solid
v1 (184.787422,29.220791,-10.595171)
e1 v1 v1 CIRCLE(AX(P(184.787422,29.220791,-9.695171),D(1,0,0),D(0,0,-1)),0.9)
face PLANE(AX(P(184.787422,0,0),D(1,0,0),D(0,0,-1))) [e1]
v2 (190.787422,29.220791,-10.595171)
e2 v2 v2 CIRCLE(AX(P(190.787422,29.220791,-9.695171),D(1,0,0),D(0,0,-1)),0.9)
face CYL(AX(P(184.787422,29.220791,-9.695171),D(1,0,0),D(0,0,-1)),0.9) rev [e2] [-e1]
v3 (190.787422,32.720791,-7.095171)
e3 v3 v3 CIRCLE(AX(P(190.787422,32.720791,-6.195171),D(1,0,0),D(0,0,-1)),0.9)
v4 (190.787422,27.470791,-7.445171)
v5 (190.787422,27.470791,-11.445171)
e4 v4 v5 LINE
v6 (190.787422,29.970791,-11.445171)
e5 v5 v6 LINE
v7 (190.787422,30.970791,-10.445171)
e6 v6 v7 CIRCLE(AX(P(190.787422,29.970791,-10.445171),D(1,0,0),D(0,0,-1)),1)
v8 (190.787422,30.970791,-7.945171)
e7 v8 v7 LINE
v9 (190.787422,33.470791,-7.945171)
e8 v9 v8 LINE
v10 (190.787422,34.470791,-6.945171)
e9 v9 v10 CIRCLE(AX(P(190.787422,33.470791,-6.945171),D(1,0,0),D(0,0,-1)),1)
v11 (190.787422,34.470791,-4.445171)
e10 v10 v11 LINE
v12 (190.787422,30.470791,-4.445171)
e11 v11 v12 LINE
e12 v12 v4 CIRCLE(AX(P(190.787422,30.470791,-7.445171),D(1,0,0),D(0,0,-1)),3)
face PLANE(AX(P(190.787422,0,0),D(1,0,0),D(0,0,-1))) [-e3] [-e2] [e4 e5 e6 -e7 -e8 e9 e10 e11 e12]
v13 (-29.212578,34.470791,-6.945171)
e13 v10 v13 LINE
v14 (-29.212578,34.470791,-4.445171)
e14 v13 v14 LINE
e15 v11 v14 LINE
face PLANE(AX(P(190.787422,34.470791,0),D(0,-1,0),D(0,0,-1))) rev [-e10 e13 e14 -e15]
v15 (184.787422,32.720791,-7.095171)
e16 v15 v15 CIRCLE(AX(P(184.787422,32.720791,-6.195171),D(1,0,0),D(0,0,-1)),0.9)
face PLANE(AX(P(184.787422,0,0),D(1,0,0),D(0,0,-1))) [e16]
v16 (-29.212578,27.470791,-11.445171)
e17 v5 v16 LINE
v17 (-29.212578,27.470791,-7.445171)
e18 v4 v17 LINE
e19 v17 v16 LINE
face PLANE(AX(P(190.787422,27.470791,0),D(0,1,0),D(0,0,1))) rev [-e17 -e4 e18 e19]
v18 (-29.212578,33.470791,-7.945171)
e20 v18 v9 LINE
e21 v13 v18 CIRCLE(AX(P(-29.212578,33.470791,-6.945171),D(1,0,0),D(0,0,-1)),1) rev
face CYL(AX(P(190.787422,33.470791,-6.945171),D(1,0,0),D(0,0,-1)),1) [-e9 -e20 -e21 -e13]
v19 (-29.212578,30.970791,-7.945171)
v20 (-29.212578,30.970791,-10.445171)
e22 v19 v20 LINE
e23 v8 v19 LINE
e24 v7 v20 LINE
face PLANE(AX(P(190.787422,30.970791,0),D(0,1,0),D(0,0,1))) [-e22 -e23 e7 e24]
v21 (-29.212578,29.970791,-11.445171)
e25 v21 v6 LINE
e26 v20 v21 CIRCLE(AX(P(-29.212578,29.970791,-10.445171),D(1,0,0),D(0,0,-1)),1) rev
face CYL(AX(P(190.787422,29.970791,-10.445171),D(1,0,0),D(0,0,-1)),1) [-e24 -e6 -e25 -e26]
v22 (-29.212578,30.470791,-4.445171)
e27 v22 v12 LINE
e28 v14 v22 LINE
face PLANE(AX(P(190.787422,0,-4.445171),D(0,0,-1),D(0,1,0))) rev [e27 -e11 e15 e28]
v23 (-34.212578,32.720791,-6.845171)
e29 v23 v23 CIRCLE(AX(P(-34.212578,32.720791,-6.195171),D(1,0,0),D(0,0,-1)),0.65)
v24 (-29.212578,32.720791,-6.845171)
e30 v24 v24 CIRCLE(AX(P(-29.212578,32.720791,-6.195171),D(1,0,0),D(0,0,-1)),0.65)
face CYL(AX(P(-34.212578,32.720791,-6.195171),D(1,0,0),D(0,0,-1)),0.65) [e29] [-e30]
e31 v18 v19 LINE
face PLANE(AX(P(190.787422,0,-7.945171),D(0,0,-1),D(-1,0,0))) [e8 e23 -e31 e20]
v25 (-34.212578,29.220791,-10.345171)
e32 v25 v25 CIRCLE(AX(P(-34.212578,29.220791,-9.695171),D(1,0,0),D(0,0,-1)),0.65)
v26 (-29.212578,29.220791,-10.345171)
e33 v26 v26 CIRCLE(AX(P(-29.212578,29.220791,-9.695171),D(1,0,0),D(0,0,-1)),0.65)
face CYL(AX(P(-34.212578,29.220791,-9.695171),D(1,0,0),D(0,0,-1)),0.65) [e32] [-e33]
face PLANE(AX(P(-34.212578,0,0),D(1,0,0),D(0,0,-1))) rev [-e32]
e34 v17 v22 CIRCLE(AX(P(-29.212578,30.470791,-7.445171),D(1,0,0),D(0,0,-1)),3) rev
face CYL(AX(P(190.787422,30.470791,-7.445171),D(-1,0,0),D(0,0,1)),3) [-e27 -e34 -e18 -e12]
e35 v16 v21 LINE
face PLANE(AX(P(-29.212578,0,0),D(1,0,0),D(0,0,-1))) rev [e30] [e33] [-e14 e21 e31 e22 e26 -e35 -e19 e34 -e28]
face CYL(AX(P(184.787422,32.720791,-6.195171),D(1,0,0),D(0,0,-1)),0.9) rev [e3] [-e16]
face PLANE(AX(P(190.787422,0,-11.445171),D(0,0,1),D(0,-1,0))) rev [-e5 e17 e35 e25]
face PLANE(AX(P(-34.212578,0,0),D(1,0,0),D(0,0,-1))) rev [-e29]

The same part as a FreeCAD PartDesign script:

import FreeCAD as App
import Part
import Sketcher


def edges_at(feature, points):
    """Names of the edges that pass closest to the given points."""
    edges = feature.Shape.Edges
    near = lambda p: min(range(len(edges)), key=lambda i: edges[i].distToShape(Part.Vertex(*p))[0])
    return sorted({f"Edge{near(p) + 1}" for p in points})

doc = App.newDocument("Part")
params = doc.addObject("Spreadsheet::Sheet", "Params")
for row, (alias, value) in enumerate([
    ("sketch1_width", "7 mm"),
    ("pad1_length", "220 mm"),
    ("sketch2_diameter", "1.8 mm"),
    ("pocket1_length", "6 mm"),
    ("sketch3_diameter", "1.3 mm"),
    ("pad2_length", "5 mm"),
    ("fillet_radius", "3 mm"),
    ("fillet2_radius", "1 mm"),
], start=1):
    params.set(f"A{row}", alias)
    params.set(f"B{row}", "=" + value)
    params.setAlias(f"B{row}", alias)

body = doc.addObject("PartDesign::Body", "Body")

# Sketch on YZ plane
sketch1 = doc.addObject("Sketcher::SketchObject", "Sketch")
body.addObject(sketch1)
sketch1.AttachmentSupport = (doc.YZ_Plane, [""])
sketch1.MapMode = "FlatFace"
sketch1.AttachmentOffset = App.Placement(App.Vector(0, 0, -29.212578), App.Rotation())
sketch1.addGeometry([
    Part.LineSegment(App.Vector(30.970791, -7.945171, 0), App.Vector(34.470791, -7.945171, 0)),  # 0
    Part.LineSegment(App.Vector(34.470791, -7.945171, 0), App.Vector(34.470791, -4.445171, 0)),  # 1
    Part.LineSegment(App.Vector(34.470791, -4.445171, 0), App.Vector(27.470791, -4.445171, 0)),  # 2
    Part.LineSegment(App.Vector(27.470791, -4.445171, 0), App.Vector(27.470791, -11.445171, 0)),  # 3
    Part.LineSegment(App.Vector(27.470791, -11.445171, 0), App.Vector(30.970791, -11.445171, 0)),  # 4
    Part.LineSegment(App.Vector(30.970791, -11.445171, 0), App.Vector(30.970791, -7.945171, 0)),  # 5
], False)
sketch1.addConstraint([
    Sketcher.Constraint("Coincident", 0, 2, 1, 1),
    Sketcher.Constraint("Coincident", 1, 2, 2, 1),
    Sketcher.Constraint("Coincident", 2, 2, 3, 1),
    Sketcher.Constraint("Coincident", 3, 2, 4, 1),
    Sketcher.Constraint("Coincident", 4, 2, 5, 1),
    Sketcher.Constraint("Coincident", 5, 2, 0, 1),
    Sketcher.Constraint("Horizontal", 0),
    Sketcher.Constraint("Vertical", 1),
    Sketcher.Constraint("Horizontal", 2),
    Sketcher.Constraint("Vertical", 3),
    Sketcher.Constraint("Horizontal", 4),
    Sketcher.Constraint("Vertical", 5),
    Sketcher.Constraint("Equal", 0, 4),
    Sketcher.Constraint("Equal", 4, 1),
    Sketcher.Constraint("Equal", 2, 3),
    Sketcher.Constraint("DistanceX", 2, 2, 2, 1, 7.0),
    Sketcher.Constraint("DistanceX", -1, 1, 0, 2, 34.470791),
    Sketcher.Constraint("DistanceY", 0, 2, -1, 1, 7.945171),
])
sketch1.setExpression("Constraints[15]", "Params.sketch1_width")
pad1 = doc.addObject("PartDesign::Pad", "Pad")
body.addObject(pad1)
pad1.Profile = sketch1
pad1.setExpression("Length", "Params.pad1_length")

# Sketch on YZ plane
sketch2 = doc.addObject("Sketcher::SketchObject", "Sketch001")
body.addObject(sketch2)
sketch2.AttachmentSupport = (doc.YZ_Plane, [""])
sketch2.MapMode = "FlatFace"
sketch2.AttachmentOffset = App.Placement(App.Vector(0, 0, 190.787422), App.Rotation())
sketch2.addGeometry([
    Part.Circle(App.Vector(32.720791, -6.195171, 0), App.Vector(0, 0, 1), 0.9),
    Part.Circle(App.Vector(29.220791, -9.695171, 0), App.Vector(0, 0, 1), 0.9),
], False)
sketch2.addConstraint([
    Sketcher.Constraint("Equal", 0, 1),
    Sketcher.Constraint("Diameter", 0, 1.8),
    Sketcher.Constraint("DistanceX", 1, 3, 0, 3, 3.5),
    Sketcher.Constraint("DistanceY", 1, 3, 0, 3, 3.5),
    Sketcher.Constraint("DistanceX", -1, 1, 0, 3, 32.720791),
    Sketcher.Constraint("DistanceY", 0, 3, -1, 1, 6.195171),
])
sketch2.setExpression("Constraints[1]", "Params.sketch2_diameter")
pocket1 = doc.addObject("PartDesign::Pocket", "Pocket")
body.addObject(pocket1)
pocket1.Profile = sketch2
pocket1.setExpression("Length", "Params.pocket1_length")

# Sketch on YZ plane
sketch3 = doc.addObject("Sketcher::SketchObject", "Sketch002")
body.addObject(sketch3)
sketch3.AttachmentSupport = (doc.YZ_Plane, [""])
sketch3.MapMode = "FlatFace"
sketch3.AttachmentOffset = App.Placement(App.Vector(0, 0, -29.212578), App.Rotation())
sketch3.addGeometry([
    Part.Circle(App.Vector(32.720791, -6.195171, 0), App.Vector(0, 0, 1), 0.65),
    Part.Circle(App.Vector(29.220791, -9.695171, 0), App.Vector(0, 0, 1), 0.65),
], False)
sketch3.addConstraint([
    Sketcher.Constraint("Equal", 0, 1),
    Sketcher.Constraint("Diameter", 0, 1.3),
    Sketcher.Constraint("DistanceX", 1, 3, 0, 3, 3.5),
    Sketcher.Constraint("DistanceY", 1, 3, 0, 3, 3.5),
    Sketcher.Constraint("DistanceX", -1, 1, 0, 3, 32.720791),
    Sketcher.Constraint("DistanceY", 0, 3, -1, 1, 6.195171),
])
sketch3.setExpression("Constraints[1]", "Params.sketch3_diameter")
pad2 = doc.addObject("PartDesign::Pad", "Pad001")
body.addObject(pad2)
pad2.Profile = sketch3
pad2.setExpression("Length", "Params.pad2_length")
pad2.Reversed = True
doc.recompute()

fillet = doc.addObject("PartDesign::Fillet", "Fillet")
body.addObject(fillet)
fillet.Base = (pad2, edges_at(pad2, [(80.787, 27.471, -4.445)]))
fillet.setExpression("Radius", "Params.fillet_radius")
doc.recompute()

fillet2 = doc.addObject("PartDesign::Fillet", "Fillet001")
body.addObject(fillet2)
fillet2.Base = (fillet, edges_at(fillet, [(80.787, 30.971, -11.445), (80.787, 34.471, -7.945)]))
fillet2.setExpression("Radius", "Params.fillet2_radius")

doc.recompute()
